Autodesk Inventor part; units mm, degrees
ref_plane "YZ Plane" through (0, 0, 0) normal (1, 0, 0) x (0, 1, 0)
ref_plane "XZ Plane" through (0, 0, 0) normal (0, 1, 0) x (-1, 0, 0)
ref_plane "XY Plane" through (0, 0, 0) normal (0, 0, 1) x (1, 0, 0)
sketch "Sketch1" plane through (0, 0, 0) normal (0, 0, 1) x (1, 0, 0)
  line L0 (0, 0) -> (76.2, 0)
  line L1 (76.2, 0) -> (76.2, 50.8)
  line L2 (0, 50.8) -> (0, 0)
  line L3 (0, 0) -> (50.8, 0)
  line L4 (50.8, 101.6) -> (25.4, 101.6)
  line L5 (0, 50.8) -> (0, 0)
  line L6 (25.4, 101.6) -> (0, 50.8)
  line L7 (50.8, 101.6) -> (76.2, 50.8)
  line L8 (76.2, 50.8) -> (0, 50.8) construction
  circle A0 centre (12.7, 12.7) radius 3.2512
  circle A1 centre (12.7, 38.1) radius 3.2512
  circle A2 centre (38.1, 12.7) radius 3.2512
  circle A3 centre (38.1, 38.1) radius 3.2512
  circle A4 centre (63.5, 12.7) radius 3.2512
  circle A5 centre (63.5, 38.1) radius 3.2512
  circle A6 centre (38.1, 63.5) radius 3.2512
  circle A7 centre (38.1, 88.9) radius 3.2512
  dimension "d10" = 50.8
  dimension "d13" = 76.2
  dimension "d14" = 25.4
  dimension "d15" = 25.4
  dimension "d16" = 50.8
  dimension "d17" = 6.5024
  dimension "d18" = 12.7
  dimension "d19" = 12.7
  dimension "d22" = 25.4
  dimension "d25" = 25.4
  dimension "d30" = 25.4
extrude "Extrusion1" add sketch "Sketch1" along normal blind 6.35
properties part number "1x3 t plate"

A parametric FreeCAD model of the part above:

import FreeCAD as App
import Part
import Sketcher

V = App.Vector
Q = App.Units.Quantity

doc = App.newDocument("Part")
params = doc.addObject("Spreadsheet::Sheet", "Params")
for row, (alias, value) in enumerate([
    ("sketch1_width", "3 in"),
    ("sketch1_width2", "1 in"),
    ("sketch1_height", "2 in"),
    ("sketch1_diameter", "0.256 in"),
    ("pad1_length", "0.25 in"),
], start=1):
    params.set(f"A{row}", alias)
    params.set(f"B{row}", "=" + value)
    params.setAlias(f"B{row}", alias)

body = doc.addObject("PartDesign::Body", "Body")

# Sketch on XY plane
sketch1 = body.newObject("Sketcher::SketchObject", "Sketch")
sketch1.AttachmentSupport = (doc.getObject("XY_Plane"), [""])
sketch1.MapMode = "FlatFace"
sketch1.addGeometry(Part.LineSegment(V(0, 50.8, 0), V(0, 0, 0)), False)
sketch1.addGeometry(Part.LineSegment(V(0, 0, 0), V(76.2, 0, 0)), False)
sketch1.addGeometry(Part.LineSegment(V(76.2, 0, 0), V(76.2, 50.8, 0)), False)
sketch1.addGeometry(Part.LineSegment(V(76.2, 50.8, 0), V(50.8, 101.6, 0)), False)
sketch1.addGeometry(Part.LineSegment(V(50.8, 101.6, 0), V(25.4, 101.6, 0)), False)
sketch1.addGeometry(Part.LineSegment(V(25.4, 101.6, 0), V(0, 50.8, 0)), False)
sketch1.addGeometry(Part.Circle(V(12.7, 12.7, 0), V(0, 0, 1), 3.2512), False)
sketch1.addGeometry(Part.Circle(V(12.7, 38.1, 0), V(0, 0, 1), 3.2512), False)
sketch1.addGeometry(Part.Circle(V(38.1, 12.7, 0), V(0, 0, 1), 3.2512), False)
sketch1.addGeometry(Part.Circle(V(63.5, 12.7, 0), V(0, 0, 1), 3.2512), False)
sketch1.addGeometry(Part.Circle(V(38.1, 38.1, 0), V(0, 0, 1), 3.2512), False)
sketch1.addGeometry(Part.Circle(V(63.5, 38.1, 0), V(0, 0, 1), 3.2512), False)
sketch1.addGeometry(Part.Circle(V(38.1, 63.5, 0), V(0, 0, 1), 3.2512), False)
sketch1.addGeometry(Part.Circle(V(38.1, 88.9, 0), V(0, 0, 1), 3.2512), False)
sketch1.addConstraint(Sketcher.Constraint("Coincident", 0, 2, 1, 1))
sketch1.addConstraint(Sketcher.Constraint("Coincident", 1, 2, 2, 1))
sketch1.addConstraint(Sketcher.Constraint("Coincident", 2, 2, 3, 1))
sketch1.addConstraint(Sketcher.Constraint("Coincident", 3, 2, 4, 1))
sketch1.addConstraint(Sketcher.Constraint("Coincident", 4, 2, 5, 1))
sketch1.addConstraint(Sketcher.Constraint("Coincident", 5, 2, 0, 1))
sketch1.addConstraint(Sketcher.Constraint("Vertical", 0))
sketch1.addConstraint(Sketcher.Constraint("Horizontal", 1))
sketch1.addConstraint(Sketcher.Constraint("Vertical", 2))
sketch1.addConstraint(Sketcher.Constraint("Horizontal", 4))
sketch1.addConstraint(Sketcher.Constraint("Coincident", 0, 2, -1, 1))
sketch1.addConstraint(Sketcher.Constraint("Equal", 6, 7))
sketch1.addConstraint(Sketcher.Constraint("Equal", 7, 8))
sketch1.addConstraint(Sketcher.Constraint("Equal", 8, 9))
sketch1.addConstraint(Sketcher.Constraint("Equal", 9, 10))
sketch1.addConstraint(Sketcher.Constraint("Equal", 10, 11))
sketch1.addConstraint(Sketcher.Constraint("Equal", 11, 12))
sketch1.addConstraint(Sketcher.Constraint("Equal", 12, 13))
sketch1.addConstraint(Sketcher.Constraint("Horizontal", 6, 3, 8, 3))
sketch1.addConstraint(Sketcher.Constraint("Horizontal", 8, 3, 9, 3))
sketch1.addConstraint(Sketcher.Constraint("Horizontal", 7, 3, 10, 3))
sketch1.addConstraint(Sketcher.Constraint("Horizontal", 10, 3, 11, 3))
sketch1.addConstraint(Sketcher.Constraint("Horizontal", 2, 2, 5, 2))
sketch1.addConstraint(Sketcher.Constraint("Vertical", 6, 3, 7, 3))
sketch1.addConstraint(Sketcher.Constraint("Vertical", 8, 3, 10, 3))
sketch1.addConstraint(Sketcher.Constraint("Vertical", 9, 3, 11, 3))
sketch1.addConstraint(Sketcher.Constraint("Vertical", 10, 3, 12, 3))
sketch1.addConstraint(Sketcher.Constraint("Vertical", 12, 3, 13, 3))
sketch1.addConstraint(Sketcher.Constraint("Equal", 3, 5))
sketch1.addConstraint(Sketcher.Constraint("DistanceX", 1, 1, 1, 2, Q("3 in")))
sketch1.addConstraint(Sketcher.Constraint("DistanceX", 4, 2, 4, 1, Q("1 in")))
sketch1.addConstraint(Sketcher.Constraint("DistanceY", 0, 2, 0, 1, Q("2 in")))
sketch1.addConstraint(Sketcher.Constraint("Diameter", 6, Q("0.256 in")))
sketch1.addConstraint(Sketcher.Constraint("DistanceY", 6, 3, 7, 3, Q("1 in")))
sketch1.addConstraint(Sketcher.Constraint("DistanceX", 6, 3, 8, 3, Q("1 in")))
sketch1.addConstraint(Sketcher.Constraint("DistanceX", 8, 3, 9, 3, Q("1 in")))
sketch1.addConstraint(Sketcher.Constraint("DistanceY", 10, 3, 12, 3, Q("1 in")))
sketch1.addConstraint(Sketcher.Constraint("DistanceY", 12, 3, 13, 3, Q("1 in")))
sketch1.addConstraint(Sketcher.Constraint("DistanceY", 2, 2, 3, 2, Q("2 in")))
sketch1.addConstraint(Sketcher.Constraint("DistanceX", -1, 1, 6, 3, Q("0.5 in")))
sketch1.addConstraint(Sketcher.Constraint("DistanceY", -1, 1, 6, 3, Q("0.5 in")))
sketch1.setExpression("Constraints[29]", "Params.sketch1_width")
sketch1.setExpression("Constraints[30]", "Params.sketch1_width2")
sketch1.setExpression("Constraints[31]", "Params.sketch1_height")
sketch1.setExpression("Constraints[32]", "Params.sketch1_diameter")
pad1 = body.newObject("PartDesign::Pad", "Pad")
pad1.Profile = sketch1
pad1.setExpression("Length", "Params.pad1_length")

doc.recompute()
